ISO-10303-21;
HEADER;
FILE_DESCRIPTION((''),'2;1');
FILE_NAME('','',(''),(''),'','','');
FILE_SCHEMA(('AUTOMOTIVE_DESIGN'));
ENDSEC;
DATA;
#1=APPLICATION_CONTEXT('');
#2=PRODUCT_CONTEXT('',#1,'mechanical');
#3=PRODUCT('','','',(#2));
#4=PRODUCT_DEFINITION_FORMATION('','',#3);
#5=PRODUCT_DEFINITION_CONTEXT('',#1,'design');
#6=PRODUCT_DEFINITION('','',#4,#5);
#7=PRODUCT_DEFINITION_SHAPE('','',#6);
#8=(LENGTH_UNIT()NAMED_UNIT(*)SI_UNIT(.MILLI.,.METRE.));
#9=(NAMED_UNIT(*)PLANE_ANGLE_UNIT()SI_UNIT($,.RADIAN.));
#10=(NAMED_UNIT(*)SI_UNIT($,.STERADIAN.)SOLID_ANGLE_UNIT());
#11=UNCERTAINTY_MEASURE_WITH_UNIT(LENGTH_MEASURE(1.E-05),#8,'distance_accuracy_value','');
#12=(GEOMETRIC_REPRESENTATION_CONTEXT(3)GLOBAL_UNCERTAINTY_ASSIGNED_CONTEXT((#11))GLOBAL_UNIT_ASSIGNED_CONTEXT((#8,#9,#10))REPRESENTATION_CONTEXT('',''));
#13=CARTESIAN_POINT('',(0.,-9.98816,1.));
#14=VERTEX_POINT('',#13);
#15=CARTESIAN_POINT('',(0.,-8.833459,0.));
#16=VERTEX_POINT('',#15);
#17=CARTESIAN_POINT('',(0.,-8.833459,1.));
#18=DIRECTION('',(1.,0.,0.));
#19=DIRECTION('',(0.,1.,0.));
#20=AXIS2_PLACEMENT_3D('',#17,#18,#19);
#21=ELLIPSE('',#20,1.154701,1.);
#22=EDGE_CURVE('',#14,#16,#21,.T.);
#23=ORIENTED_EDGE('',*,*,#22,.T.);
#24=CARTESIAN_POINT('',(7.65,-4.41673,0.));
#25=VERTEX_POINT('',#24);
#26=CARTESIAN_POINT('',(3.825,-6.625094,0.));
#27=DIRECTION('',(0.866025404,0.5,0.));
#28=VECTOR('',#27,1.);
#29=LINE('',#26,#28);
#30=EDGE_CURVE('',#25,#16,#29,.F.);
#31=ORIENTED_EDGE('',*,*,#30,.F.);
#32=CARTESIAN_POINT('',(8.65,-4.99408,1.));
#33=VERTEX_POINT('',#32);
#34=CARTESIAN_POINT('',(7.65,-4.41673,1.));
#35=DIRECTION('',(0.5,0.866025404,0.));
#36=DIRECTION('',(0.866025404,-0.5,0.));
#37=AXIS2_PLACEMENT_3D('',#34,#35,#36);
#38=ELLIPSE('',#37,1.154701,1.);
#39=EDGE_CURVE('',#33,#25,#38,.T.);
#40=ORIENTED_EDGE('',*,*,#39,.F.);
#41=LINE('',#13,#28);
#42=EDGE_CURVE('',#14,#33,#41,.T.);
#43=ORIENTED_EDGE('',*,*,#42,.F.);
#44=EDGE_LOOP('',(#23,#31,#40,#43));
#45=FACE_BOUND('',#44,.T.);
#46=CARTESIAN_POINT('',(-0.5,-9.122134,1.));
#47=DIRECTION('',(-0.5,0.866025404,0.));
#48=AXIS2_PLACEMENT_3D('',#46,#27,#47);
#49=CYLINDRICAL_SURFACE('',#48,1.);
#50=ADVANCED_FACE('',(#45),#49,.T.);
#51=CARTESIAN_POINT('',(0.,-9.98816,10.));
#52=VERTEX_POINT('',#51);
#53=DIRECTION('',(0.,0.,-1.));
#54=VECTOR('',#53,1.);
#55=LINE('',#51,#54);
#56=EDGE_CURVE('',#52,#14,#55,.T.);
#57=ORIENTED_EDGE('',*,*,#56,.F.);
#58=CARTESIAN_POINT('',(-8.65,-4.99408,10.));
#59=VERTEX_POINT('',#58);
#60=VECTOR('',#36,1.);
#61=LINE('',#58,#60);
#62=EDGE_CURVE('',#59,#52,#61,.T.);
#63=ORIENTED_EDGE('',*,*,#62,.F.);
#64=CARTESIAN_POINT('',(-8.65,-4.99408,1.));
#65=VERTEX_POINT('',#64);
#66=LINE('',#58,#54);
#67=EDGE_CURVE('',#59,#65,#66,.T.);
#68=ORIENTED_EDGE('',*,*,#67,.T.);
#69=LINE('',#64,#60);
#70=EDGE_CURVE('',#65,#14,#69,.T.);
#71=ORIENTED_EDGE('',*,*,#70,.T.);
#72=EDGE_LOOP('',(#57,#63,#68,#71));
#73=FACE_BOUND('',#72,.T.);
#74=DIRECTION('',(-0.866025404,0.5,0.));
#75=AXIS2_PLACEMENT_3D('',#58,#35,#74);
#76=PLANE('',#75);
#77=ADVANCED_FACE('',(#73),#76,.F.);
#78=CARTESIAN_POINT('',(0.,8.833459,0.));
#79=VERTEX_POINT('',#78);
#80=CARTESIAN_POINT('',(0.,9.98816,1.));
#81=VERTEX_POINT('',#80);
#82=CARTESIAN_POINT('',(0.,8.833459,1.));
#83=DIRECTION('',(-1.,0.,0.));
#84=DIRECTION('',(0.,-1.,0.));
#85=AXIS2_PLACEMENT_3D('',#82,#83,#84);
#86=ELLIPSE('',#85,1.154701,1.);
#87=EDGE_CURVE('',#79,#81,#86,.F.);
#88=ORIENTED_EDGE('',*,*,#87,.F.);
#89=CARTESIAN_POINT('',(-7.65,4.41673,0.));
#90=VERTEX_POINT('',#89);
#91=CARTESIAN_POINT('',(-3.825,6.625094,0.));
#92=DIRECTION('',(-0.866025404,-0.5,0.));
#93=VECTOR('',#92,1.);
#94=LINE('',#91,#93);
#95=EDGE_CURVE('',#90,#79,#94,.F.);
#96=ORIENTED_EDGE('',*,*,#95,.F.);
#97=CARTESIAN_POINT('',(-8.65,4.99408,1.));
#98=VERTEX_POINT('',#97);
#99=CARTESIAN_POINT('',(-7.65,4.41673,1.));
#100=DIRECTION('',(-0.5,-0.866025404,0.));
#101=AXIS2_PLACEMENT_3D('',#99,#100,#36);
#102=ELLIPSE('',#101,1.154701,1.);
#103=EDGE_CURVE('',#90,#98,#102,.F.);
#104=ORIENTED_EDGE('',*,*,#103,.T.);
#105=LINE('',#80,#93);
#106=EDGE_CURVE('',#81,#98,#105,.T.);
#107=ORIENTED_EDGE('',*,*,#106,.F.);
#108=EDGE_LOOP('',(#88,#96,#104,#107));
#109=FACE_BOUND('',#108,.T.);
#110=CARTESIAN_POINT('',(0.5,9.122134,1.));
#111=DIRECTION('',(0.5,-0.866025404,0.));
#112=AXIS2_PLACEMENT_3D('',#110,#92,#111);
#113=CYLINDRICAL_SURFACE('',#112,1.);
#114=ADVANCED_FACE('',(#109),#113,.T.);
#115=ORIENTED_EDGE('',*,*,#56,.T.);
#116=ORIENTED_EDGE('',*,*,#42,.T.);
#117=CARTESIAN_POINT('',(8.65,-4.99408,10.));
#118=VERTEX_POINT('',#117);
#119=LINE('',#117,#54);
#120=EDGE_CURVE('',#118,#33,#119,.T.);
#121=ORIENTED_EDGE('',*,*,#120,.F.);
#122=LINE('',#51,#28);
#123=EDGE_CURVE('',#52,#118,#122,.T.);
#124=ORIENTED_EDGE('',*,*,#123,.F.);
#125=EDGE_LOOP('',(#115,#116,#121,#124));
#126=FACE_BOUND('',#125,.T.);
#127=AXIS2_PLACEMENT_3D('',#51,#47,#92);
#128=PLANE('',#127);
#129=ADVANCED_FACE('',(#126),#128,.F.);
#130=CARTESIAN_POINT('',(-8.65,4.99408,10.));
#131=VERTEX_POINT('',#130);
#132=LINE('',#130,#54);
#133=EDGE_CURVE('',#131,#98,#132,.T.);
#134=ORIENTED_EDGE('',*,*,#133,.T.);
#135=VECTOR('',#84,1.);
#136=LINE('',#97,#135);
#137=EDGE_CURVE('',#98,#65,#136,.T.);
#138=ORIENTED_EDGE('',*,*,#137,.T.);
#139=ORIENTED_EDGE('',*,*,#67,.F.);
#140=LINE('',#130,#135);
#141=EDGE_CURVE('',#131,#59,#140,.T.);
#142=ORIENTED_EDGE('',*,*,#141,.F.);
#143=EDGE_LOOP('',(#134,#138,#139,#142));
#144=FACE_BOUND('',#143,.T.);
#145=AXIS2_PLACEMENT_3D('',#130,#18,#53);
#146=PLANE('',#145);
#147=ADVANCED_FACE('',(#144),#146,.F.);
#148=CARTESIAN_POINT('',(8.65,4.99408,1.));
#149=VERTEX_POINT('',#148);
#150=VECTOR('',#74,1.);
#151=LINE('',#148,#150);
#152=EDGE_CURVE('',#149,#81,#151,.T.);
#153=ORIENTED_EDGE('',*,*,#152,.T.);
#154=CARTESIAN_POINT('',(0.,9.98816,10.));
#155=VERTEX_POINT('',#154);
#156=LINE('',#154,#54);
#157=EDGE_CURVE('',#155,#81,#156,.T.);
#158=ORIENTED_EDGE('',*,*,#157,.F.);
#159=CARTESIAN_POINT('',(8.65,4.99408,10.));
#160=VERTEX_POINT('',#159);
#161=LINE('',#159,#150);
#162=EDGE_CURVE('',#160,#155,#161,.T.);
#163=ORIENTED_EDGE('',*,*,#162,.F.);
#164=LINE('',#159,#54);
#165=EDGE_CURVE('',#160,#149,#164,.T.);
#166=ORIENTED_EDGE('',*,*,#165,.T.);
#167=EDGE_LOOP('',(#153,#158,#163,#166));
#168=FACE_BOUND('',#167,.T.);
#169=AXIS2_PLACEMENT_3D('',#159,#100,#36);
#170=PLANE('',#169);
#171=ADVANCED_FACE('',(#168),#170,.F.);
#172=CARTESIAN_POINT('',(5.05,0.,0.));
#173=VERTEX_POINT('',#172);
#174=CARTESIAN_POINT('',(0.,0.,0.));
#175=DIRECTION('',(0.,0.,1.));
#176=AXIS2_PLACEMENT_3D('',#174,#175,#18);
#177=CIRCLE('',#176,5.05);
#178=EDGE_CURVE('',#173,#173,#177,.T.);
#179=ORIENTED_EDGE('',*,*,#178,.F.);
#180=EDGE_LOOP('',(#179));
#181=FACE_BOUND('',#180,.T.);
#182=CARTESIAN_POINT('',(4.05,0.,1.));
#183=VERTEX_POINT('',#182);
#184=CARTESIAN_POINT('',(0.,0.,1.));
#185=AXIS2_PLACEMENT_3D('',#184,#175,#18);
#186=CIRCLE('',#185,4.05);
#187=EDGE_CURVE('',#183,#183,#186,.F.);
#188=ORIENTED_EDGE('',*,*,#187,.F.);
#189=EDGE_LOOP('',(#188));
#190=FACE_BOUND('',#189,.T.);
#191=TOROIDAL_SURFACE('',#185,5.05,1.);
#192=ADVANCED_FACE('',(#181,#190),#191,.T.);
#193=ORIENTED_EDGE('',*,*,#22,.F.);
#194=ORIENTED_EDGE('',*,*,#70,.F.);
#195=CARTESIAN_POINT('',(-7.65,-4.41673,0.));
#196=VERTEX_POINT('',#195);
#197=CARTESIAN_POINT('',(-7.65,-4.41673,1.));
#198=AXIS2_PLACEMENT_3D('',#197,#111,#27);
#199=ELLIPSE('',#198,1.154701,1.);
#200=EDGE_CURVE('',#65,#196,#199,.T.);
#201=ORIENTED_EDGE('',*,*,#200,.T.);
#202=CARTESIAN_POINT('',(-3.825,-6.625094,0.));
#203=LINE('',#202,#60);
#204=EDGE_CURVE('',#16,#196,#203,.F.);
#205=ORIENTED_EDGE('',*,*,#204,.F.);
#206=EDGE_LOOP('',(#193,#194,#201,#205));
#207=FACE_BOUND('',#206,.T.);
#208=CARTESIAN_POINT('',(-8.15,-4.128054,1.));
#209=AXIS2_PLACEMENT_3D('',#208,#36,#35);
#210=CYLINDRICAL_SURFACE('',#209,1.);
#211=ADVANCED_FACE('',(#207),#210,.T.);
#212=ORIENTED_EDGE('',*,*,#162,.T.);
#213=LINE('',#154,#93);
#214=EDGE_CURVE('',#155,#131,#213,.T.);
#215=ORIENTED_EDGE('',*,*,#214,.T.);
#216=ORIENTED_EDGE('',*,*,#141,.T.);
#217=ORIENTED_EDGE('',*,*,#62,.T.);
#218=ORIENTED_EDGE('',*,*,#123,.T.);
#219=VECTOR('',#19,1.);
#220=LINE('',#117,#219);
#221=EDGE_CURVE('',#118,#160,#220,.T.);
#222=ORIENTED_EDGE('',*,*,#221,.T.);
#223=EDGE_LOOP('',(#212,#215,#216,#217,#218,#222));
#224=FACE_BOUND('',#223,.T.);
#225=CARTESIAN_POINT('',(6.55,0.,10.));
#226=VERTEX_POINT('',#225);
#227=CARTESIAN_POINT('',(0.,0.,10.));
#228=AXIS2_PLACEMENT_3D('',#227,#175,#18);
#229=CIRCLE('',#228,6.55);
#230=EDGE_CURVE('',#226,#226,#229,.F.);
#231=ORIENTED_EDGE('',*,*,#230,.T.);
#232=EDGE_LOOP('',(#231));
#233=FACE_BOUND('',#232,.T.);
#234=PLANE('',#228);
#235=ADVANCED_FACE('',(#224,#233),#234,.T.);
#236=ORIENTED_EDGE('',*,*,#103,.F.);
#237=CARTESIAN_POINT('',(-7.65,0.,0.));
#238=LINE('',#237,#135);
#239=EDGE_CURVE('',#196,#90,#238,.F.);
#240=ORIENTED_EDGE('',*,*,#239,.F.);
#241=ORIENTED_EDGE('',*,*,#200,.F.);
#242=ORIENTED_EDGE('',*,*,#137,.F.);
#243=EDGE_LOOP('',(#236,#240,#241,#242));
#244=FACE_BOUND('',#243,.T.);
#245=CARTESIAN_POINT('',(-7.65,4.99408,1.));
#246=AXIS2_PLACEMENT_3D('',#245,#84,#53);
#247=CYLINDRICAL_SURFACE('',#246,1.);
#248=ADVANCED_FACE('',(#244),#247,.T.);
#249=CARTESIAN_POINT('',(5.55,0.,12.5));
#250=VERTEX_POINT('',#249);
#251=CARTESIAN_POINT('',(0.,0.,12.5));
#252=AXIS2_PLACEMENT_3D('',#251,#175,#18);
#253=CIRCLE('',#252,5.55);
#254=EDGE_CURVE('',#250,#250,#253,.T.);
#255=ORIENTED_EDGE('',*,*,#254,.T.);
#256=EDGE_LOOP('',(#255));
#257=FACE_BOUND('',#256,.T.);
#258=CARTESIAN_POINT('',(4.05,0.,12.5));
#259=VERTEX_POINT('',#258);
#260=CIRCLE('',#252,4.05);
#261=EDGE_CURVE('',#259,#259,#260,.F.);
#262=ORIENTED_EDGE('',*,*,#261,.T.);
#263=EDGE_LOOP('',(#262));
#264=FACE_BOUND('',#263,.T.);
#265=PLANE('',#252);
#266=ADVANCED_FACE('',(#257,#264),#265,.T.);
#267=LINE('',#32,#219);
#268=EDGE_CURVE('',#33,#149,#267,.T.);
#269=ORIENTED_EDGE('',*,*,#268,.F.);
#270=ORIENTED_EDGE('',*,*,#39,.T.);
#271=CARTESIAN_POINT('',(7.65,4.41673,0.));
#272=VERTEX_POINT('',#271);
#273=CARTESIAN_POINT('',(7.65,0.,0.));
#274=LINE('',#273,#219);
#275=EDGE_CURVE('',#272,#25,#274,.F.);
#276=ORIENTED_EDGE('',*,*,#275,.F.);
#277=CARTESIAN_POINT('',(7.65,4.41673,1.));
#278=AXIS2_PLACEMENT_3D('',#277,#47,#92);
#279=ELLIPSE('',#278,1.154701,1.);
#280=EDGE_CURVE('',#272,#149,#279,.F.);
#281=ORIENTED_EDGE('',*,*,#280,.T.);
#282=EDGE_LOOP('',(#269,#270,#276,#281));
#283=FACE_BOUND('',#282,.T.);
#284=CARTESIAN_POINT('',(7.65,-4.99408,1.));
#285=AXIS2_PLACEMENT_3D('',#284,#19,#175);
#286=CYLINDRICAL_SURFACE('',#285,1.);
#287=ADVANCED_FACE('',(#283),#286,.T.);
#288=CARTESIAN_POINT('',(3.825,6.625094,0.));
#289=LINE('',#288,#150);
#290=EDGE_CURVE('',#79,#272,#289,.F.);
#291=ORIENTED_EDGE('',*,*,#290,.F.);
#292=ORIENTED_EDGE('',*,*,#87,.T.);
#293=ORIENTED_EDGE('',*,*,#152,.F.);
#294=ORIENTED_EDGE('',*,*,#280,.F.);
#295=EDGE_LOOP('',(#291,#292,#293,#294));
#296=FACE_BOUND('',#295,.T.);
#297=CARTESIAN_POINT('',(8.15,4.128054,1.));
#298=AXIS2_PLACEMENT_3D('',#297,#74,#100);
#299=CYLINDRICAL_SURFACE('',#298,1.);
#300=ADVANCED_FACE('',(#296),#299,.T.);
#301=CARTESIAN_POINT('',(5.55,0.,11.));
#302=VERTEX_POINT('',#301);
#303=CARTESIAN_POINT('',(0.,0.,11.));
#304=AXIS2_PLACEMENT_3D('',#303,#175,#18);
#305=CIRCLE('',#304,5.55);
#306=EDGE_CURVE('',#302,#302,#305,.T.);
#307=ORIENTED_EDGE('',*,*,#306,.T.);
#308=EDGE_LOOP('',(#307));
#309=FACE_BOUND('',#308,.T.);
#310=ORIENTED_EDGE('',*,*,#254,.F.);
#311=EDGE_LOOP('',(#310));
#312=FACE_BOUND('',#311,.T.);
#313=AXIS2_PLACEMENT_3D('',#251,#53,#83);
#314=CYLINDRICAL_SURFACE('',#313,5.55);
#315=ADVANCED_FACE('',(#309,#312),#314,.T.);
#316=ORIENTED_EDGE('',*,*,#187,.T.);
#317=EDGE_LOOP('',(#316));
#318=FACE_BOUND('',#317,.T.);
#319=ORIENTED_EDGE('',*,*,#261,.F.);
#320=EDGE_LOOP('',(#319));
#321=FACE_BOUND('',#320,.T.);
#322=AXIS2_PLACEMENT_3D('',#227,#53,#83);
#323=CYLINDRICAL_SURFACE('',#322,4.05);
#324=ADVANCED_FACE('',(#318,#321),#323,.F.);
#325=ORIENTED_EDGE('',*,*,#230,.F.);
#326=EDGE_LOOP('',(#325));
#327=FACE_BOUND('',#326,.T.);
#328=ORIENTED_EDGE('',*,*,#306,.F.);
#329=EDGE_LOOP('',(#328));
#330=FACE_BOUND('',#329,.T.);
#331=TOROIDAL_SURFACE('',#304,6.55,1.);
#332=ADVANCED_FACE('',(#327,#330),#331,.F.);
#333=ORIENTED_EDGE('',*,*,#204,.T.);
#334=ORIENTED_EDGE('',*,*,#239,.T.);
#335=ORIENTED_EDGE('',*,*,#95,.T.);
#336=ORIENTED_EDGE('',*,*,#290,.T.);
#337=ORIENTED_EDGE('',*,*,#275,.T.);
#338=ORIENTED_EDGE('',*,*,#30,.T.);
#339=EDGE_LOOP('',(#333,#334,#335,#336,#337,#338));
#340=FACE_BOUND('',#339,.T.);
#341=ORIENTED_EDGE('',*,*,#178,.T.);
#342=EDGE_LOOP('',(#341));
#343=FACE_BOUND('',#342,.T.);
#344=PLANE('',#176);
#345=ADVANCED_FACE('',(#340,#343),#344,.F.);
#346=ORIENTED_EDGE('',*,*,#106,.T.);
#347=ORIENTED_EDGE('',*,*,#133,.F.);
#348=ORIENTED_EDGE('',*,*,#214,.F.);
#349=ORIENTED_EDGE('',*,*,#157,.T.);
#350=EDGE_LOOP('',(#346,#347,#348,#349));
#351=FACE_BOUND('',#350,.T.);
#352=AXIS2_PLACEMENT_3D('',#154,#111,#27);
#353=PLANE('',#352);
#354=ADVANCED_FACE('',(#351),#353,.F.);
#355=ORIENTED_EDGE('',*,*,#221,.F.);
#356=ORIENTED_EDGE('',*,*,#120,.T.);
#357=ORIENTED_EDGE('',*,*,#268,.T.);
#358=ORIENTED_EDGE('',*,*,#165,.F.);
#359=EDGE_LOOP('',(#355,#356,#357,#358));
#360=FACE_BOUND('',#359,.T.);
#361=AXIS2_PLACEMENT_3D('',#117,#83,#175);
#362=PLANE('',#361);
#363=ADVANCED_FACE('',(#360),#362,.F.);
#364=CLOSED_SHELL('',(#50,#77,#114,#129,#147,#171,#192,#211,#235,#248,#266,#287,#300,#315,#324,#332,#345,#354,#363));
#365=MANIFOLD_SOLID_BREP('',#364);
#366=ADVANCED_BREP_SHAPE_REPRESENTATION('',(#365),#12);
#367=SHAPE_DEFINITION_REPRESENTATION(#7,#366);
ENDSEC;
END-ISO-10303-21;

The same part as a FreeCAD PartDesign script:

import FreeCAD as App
import Part
import Sketcher

V = App.Vector
Q = App.Units.Quantity


def edges_at(feature, points):
    """Names of the edges that pass closest to the given points."""
    edges = feature.Shape.Edges
    near = lambda p: min(range(len(edges)), key=lambda i: edges[i].distToShape(Part.Vertex(*p))[0])
    return sorted({f"Edge{near(p) + 1}" for p in points})

doc = App.newDocument("Part")
body = doc.addObject("PartDesign::Body", "Body")

sketch1 = body.newObject("Sketcher::SketchObject", "Sketch")
sketch1.AttachmentSupport = (doc.getObject("XY_Plane"), [""])
sketch1.MapMode = "FlatFace"
sketch1.addGeometry(Part.LineSegment(V(8.7, -5, 0), V(8.7, 5, 0)), False)
sketch1.addGeometry(Part.LineSegment(V(8.7, 5, 0), V(0, 10, 0)), False)
sketch1.addGeometry(Part.LineSegment(V(0, 10, 0), V(-8.7, 5, 0)), False)
sketch1.addGeometry(Part.LineSegment(V(-8.7, 5, 0), V(-8.7, -5, 0)), False)
sketch1.addGeometry(Part.LineSegment(V(-8.7, -5, 0), V(0, -10, 0)), False)
sketch1.addGeometry(Part.LineSegment(V(0, -10, 0), V(8.7, -5, 0)), False)
sketch1.addGeometry(Part.Circle(V(0, 0, 0), V(0, 0, 1), 4), False)
sketch1.addConstraint(Sketcher.Constraint("Coincident", 0, 2, 1, 1))
sketch1.addConstraint(Sketcher.Constraint("Coincident", 1, 2, 2, 1))
sketch1.addConstraint(Sketcher.Constraint("Coincident", 2, 2, 3, 1))
sketch1.addConstraint(Sketcher.Constraint("Coincident", 3, 2, 4, 1))
sketch1.addConstraint(Sketcher.Constraint("Coincident", 4, 2, 5, 1))
sketch1.addConstraint(Sketcher.Constraint("Coincident", 5, 2, 0, 1))
sketch1.addConstraint(Sketcher.Constraint("Vertical", 0))
sketch1.addConstraint(Sketcher.Constraint("Vertical", 3))
sketch1.addConstraint(Sketcher.Constraint("Coincident", 6, 3, -1, 1))
sketch1.addConstraint(Sketcher.Constraint("Symmetric", 0, 2, 3, 2, -1, 1))
sketch1.addConstraint(Sketcher.Constraint("Symmetric", 1, 2, 4, 2, -1, 1))
sketch1.addConstraint(Sketcher.Constraint("PointOnObject", 1, 2, -2))
sketch1.addConstraint(Sketcher.Constraint("Parallel", 2, 5))
sketch1.addConstraint(Sketcher.Constraint("Horizontal", 0, 2, 2, 2))
sketch1.addConstraint(Sketcher.Constraint("Diameter", 6, 8.1))
sketch1.addConstraint(Sketcher.Constraint("Angle", 1, Q("150 deg")))
sketch1.addConstraint(Sketcher.Constraint("DistanceX", 2, 2, 0, 2, 17.3))
sketch1.addConstraint(Sketcher.Constraint("DistanceY", 0, 1, 0, 2, 9.98816))
pad1 = body.newObject("PartDesign::Pad", "Pad")
pad1.Profile = sketch1
pad1.Length = 10

sketch2 = body.newObject("Sketcher::SketchObject", "Sketch001")
sketch2.AttachmentSupport = (doc.getObject("XY_Plane"), [""])
sketch2.MapMode = "FlatFace"
sketch2.AttachmentOffset = App.Placement(V(0, 0, 10), App.Rotation())
sketch2.addGeometry(Part.Circle(V(0, 0, 0), V(0, 0, 1), 5.5), False)
sketch2.addGeometry(Part.Circle(V(0, 0, 0), V(0, 0, 1), 4), False)
sketch2.addConstraint(Sketcher.Constraint("Coincident", 0, 3, -1, 1))
sketch2.addConstraint(Sketcher.Constraint("Coincident", 1, 3, -1, 1))
sketch2.addConstraint(Sketcher.Constraint("Diameter", 0, 11.1))
sketch2.addConstraint(Sketcher.Constraint("Diameter", 1, 8.1))
pad2 = body.newObject("PartDesign::Pad", "Pad001")
pad2.Profile = sketch2
pad2.Length = 2.5
doc.recompute()

fillet = body.newObject("PartDesign::Fillet", "Fillet")
fillet.Base = (pad2, edges_at(pad2, [
    (-4.05, 0, 0),
    (-5.55, 0, 10),
    (-4.325, -7.491, 0),
    (-8.65, 0, 0),
    (-4.325, 7.491, 0),
    (4.325, 7.491, 0),
    (8.65, 0, 0),
    (4.325, -7.491, 0),
]))
fillet.Radius = 1

doc.recompute()
